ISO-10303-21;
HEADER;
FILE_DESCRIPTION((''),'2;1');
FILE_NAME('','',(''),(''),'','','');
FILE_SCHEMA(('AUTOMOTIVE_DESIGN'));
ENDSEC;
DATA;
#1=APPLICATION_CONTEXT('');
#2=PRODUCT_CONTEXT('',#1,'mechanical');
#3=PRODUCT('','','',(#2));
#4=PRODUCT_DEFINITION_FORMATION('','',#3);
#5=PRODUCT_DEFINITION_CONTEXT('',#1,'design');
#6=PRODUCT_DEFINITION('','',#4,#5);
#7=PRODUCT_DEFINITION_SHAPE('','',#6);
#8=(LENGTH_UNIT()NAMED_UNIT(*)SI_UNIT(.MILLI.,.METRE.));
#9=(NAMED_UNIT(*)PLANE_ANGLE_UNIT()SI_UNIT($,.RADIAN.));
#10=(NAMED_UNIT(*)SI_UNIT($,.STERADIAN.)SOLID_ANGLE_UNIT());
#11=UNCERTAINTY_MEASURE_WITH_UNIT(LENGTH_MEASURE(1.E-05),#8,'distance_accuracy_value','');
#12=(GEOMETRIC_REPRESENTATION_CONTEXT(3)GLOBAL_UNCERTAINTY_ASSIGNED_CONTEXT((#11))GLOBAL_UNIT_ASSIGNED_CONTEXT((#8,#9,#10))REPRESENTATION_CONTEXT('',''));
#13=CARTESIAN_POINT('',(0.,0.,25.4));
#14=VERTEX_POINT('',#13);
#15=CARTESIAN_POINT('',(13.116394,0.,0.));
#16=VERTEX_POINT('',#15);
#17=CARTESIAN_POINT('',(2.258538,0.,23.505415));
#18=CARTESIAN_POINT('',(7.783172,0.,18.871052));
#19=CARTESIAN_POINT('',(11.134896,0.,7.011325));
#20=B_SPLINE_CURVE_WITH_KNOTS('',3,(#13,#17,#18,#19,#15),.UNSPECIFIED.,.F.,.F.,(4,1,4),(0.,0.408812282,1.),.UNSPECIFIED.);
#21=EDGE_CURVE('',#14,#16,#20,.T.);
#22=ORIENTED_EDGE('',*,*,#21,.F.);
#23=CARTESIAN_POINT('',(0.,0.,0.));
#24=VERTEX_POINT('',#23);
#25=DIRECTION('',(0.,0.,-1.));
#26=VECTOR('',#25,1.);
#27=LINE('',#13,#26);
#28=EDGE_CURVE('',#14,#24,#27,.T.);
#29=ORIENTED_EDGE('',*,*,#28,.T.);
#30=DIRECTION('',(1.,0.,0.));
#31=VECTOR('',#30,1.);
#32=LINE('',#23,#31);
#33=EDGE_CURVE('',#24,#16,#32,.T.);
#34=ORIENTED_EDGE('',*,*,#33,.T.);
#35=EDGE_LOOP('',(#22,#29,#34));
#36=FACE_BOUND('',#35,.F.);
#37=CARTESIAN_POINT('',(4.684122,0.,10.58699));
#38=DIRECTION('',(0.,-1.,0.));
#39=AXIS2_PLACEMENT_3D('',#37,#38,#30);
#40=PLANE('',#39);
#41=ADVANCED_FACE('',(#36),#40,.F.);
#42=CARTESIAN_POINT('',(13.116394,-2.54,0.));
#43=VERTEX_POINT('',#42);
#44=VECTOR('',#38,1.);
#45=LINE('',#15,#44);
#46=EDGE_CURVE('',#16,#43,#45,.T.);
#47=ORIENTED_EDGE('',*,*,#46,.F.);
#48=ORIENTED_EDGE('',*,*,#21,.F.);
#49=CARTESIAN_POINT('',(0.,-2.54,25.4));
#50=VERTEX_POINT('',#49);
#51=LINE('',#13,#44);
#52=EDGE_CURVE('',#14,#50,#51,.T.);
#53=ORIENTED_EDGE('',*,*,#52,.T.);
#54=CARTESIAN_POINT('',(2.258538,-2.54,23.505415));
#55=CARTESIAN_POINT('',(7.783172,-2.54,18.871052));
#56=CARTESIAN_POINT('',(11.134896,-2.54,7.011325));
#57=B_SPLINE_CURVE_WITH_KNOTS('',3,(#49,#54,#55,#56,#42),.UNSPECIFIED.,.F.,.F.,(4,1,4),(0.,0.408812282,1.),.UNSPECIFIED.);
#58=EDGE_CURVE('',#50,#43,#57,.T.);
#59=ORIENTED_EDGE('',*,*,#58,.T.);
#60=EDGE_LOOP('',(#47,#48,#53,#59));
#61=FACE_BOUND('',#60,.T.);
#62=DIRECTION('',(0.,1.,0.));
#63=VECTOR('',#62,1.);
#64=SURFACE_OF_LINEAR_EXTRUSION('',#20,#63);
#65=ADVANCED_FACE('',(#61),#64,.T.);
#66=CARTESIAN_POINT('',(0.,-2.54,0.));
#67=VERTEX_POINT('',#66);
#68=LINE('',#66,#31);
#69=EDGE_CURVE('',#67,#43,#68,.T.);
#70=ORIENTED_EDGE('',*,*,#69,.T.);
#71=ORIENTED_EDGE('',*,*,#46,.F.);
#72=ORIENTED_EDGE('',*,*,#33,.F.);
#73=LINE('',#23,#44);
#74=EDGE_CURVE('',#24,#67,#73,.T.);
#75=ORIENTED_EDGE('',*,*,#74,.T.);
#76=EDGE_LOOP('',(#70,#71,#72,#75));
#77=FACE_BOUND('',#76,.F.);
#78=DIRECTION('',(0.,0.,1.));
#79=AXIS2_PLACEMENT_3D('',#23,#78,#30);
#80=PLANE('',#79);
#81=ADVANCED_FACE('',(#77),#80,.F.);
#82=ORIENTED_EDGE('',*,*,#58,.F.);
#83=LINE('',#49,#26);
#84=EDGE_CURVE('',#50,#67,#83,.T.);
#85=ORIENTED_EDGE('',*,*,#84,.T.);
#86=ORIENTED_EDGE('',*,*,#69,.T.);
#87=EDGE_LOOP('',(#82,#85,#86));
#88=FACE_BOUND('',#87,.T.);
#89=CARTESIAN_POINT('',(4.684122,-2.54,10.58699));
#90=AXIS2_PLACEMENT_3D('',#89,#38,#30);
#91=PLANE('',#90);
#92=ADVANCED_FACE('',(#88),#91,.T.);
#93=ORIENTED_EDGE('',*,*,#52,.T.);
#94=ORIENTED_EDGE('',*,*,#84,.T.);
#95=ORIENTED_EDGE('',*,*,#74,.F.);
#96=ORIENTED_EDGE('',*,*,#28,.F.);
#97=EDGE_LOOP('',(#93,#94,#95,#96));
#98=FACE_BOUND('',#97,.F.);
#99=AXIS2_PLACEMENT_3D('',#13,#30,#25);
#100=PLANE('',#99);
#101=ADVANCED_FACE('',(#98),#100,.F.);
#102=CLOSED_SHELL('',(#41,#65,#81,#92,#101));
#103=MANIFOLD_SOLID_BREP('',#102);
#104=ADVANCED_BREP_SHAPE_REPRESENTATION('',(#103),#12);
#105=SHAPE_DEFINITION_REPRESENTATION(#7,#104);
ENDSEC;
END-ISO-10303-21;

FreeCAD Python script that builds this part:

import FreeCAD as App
import Part
import Sketcher

V = App.Vector
Q = App.Units.Quantity

doc = App.newDocument("Part")
body = doc.addObject("PartDesign::Body", "Body")

# Sketch on XZ plane
sketch1 = body.newObject("Sketcher::SketchObject", "Sketch")
sketch1.AttachmentSupport = (doc.getObject("XZ_Plane"), [""])
sketch1.MapMode = "FlatFace"
sketch1.addGeometry(Part.LineSegment(V(0, 25.4, 0), V(0, 0, 0)), False)
sketch1.addGeometry(Part.LineSegment(V(0, 0, 0), V(13.116394, 0, 0)), False)
sketch1.addGeometry(Part.BSplineCurve([V(0, 25.4, 0), V(2.258538, 23.505415, 0), V(7.783172, 18.871052, 0), V(11.134896, 7.011325, 0), V(13.116394, 0, 0)], [4, 1, 4], [0, 0.408812282, 1], False, 3, [1, 1, 1, 1, 1], False), False)
sketch1.addConstraint(Sketcher.Constraint("Block", 2))
sketch1.addConstraint(Sketcher.Constraint("Coincident", 0, 2, 1, 1))
sketch1.addConstraint(Sketcher.Constraint("Coincident", 1, 2, 2, 2))
sketch1.addConstraint(Sketcher.Constraint("Coincident", 2, 1, 0, 1))
sketch1.addConstraint(Sketcher.Constraint("Vertical", 0))
sketch1.addConstraint(Sketcher.Constraint("Horizontal", 1))
pad1 = body.newObject("PartDesign::Pad", "Pad")
pad1.Profile = sketch1
pad1.Length = Q("0.1 in")

doc.recompute()
